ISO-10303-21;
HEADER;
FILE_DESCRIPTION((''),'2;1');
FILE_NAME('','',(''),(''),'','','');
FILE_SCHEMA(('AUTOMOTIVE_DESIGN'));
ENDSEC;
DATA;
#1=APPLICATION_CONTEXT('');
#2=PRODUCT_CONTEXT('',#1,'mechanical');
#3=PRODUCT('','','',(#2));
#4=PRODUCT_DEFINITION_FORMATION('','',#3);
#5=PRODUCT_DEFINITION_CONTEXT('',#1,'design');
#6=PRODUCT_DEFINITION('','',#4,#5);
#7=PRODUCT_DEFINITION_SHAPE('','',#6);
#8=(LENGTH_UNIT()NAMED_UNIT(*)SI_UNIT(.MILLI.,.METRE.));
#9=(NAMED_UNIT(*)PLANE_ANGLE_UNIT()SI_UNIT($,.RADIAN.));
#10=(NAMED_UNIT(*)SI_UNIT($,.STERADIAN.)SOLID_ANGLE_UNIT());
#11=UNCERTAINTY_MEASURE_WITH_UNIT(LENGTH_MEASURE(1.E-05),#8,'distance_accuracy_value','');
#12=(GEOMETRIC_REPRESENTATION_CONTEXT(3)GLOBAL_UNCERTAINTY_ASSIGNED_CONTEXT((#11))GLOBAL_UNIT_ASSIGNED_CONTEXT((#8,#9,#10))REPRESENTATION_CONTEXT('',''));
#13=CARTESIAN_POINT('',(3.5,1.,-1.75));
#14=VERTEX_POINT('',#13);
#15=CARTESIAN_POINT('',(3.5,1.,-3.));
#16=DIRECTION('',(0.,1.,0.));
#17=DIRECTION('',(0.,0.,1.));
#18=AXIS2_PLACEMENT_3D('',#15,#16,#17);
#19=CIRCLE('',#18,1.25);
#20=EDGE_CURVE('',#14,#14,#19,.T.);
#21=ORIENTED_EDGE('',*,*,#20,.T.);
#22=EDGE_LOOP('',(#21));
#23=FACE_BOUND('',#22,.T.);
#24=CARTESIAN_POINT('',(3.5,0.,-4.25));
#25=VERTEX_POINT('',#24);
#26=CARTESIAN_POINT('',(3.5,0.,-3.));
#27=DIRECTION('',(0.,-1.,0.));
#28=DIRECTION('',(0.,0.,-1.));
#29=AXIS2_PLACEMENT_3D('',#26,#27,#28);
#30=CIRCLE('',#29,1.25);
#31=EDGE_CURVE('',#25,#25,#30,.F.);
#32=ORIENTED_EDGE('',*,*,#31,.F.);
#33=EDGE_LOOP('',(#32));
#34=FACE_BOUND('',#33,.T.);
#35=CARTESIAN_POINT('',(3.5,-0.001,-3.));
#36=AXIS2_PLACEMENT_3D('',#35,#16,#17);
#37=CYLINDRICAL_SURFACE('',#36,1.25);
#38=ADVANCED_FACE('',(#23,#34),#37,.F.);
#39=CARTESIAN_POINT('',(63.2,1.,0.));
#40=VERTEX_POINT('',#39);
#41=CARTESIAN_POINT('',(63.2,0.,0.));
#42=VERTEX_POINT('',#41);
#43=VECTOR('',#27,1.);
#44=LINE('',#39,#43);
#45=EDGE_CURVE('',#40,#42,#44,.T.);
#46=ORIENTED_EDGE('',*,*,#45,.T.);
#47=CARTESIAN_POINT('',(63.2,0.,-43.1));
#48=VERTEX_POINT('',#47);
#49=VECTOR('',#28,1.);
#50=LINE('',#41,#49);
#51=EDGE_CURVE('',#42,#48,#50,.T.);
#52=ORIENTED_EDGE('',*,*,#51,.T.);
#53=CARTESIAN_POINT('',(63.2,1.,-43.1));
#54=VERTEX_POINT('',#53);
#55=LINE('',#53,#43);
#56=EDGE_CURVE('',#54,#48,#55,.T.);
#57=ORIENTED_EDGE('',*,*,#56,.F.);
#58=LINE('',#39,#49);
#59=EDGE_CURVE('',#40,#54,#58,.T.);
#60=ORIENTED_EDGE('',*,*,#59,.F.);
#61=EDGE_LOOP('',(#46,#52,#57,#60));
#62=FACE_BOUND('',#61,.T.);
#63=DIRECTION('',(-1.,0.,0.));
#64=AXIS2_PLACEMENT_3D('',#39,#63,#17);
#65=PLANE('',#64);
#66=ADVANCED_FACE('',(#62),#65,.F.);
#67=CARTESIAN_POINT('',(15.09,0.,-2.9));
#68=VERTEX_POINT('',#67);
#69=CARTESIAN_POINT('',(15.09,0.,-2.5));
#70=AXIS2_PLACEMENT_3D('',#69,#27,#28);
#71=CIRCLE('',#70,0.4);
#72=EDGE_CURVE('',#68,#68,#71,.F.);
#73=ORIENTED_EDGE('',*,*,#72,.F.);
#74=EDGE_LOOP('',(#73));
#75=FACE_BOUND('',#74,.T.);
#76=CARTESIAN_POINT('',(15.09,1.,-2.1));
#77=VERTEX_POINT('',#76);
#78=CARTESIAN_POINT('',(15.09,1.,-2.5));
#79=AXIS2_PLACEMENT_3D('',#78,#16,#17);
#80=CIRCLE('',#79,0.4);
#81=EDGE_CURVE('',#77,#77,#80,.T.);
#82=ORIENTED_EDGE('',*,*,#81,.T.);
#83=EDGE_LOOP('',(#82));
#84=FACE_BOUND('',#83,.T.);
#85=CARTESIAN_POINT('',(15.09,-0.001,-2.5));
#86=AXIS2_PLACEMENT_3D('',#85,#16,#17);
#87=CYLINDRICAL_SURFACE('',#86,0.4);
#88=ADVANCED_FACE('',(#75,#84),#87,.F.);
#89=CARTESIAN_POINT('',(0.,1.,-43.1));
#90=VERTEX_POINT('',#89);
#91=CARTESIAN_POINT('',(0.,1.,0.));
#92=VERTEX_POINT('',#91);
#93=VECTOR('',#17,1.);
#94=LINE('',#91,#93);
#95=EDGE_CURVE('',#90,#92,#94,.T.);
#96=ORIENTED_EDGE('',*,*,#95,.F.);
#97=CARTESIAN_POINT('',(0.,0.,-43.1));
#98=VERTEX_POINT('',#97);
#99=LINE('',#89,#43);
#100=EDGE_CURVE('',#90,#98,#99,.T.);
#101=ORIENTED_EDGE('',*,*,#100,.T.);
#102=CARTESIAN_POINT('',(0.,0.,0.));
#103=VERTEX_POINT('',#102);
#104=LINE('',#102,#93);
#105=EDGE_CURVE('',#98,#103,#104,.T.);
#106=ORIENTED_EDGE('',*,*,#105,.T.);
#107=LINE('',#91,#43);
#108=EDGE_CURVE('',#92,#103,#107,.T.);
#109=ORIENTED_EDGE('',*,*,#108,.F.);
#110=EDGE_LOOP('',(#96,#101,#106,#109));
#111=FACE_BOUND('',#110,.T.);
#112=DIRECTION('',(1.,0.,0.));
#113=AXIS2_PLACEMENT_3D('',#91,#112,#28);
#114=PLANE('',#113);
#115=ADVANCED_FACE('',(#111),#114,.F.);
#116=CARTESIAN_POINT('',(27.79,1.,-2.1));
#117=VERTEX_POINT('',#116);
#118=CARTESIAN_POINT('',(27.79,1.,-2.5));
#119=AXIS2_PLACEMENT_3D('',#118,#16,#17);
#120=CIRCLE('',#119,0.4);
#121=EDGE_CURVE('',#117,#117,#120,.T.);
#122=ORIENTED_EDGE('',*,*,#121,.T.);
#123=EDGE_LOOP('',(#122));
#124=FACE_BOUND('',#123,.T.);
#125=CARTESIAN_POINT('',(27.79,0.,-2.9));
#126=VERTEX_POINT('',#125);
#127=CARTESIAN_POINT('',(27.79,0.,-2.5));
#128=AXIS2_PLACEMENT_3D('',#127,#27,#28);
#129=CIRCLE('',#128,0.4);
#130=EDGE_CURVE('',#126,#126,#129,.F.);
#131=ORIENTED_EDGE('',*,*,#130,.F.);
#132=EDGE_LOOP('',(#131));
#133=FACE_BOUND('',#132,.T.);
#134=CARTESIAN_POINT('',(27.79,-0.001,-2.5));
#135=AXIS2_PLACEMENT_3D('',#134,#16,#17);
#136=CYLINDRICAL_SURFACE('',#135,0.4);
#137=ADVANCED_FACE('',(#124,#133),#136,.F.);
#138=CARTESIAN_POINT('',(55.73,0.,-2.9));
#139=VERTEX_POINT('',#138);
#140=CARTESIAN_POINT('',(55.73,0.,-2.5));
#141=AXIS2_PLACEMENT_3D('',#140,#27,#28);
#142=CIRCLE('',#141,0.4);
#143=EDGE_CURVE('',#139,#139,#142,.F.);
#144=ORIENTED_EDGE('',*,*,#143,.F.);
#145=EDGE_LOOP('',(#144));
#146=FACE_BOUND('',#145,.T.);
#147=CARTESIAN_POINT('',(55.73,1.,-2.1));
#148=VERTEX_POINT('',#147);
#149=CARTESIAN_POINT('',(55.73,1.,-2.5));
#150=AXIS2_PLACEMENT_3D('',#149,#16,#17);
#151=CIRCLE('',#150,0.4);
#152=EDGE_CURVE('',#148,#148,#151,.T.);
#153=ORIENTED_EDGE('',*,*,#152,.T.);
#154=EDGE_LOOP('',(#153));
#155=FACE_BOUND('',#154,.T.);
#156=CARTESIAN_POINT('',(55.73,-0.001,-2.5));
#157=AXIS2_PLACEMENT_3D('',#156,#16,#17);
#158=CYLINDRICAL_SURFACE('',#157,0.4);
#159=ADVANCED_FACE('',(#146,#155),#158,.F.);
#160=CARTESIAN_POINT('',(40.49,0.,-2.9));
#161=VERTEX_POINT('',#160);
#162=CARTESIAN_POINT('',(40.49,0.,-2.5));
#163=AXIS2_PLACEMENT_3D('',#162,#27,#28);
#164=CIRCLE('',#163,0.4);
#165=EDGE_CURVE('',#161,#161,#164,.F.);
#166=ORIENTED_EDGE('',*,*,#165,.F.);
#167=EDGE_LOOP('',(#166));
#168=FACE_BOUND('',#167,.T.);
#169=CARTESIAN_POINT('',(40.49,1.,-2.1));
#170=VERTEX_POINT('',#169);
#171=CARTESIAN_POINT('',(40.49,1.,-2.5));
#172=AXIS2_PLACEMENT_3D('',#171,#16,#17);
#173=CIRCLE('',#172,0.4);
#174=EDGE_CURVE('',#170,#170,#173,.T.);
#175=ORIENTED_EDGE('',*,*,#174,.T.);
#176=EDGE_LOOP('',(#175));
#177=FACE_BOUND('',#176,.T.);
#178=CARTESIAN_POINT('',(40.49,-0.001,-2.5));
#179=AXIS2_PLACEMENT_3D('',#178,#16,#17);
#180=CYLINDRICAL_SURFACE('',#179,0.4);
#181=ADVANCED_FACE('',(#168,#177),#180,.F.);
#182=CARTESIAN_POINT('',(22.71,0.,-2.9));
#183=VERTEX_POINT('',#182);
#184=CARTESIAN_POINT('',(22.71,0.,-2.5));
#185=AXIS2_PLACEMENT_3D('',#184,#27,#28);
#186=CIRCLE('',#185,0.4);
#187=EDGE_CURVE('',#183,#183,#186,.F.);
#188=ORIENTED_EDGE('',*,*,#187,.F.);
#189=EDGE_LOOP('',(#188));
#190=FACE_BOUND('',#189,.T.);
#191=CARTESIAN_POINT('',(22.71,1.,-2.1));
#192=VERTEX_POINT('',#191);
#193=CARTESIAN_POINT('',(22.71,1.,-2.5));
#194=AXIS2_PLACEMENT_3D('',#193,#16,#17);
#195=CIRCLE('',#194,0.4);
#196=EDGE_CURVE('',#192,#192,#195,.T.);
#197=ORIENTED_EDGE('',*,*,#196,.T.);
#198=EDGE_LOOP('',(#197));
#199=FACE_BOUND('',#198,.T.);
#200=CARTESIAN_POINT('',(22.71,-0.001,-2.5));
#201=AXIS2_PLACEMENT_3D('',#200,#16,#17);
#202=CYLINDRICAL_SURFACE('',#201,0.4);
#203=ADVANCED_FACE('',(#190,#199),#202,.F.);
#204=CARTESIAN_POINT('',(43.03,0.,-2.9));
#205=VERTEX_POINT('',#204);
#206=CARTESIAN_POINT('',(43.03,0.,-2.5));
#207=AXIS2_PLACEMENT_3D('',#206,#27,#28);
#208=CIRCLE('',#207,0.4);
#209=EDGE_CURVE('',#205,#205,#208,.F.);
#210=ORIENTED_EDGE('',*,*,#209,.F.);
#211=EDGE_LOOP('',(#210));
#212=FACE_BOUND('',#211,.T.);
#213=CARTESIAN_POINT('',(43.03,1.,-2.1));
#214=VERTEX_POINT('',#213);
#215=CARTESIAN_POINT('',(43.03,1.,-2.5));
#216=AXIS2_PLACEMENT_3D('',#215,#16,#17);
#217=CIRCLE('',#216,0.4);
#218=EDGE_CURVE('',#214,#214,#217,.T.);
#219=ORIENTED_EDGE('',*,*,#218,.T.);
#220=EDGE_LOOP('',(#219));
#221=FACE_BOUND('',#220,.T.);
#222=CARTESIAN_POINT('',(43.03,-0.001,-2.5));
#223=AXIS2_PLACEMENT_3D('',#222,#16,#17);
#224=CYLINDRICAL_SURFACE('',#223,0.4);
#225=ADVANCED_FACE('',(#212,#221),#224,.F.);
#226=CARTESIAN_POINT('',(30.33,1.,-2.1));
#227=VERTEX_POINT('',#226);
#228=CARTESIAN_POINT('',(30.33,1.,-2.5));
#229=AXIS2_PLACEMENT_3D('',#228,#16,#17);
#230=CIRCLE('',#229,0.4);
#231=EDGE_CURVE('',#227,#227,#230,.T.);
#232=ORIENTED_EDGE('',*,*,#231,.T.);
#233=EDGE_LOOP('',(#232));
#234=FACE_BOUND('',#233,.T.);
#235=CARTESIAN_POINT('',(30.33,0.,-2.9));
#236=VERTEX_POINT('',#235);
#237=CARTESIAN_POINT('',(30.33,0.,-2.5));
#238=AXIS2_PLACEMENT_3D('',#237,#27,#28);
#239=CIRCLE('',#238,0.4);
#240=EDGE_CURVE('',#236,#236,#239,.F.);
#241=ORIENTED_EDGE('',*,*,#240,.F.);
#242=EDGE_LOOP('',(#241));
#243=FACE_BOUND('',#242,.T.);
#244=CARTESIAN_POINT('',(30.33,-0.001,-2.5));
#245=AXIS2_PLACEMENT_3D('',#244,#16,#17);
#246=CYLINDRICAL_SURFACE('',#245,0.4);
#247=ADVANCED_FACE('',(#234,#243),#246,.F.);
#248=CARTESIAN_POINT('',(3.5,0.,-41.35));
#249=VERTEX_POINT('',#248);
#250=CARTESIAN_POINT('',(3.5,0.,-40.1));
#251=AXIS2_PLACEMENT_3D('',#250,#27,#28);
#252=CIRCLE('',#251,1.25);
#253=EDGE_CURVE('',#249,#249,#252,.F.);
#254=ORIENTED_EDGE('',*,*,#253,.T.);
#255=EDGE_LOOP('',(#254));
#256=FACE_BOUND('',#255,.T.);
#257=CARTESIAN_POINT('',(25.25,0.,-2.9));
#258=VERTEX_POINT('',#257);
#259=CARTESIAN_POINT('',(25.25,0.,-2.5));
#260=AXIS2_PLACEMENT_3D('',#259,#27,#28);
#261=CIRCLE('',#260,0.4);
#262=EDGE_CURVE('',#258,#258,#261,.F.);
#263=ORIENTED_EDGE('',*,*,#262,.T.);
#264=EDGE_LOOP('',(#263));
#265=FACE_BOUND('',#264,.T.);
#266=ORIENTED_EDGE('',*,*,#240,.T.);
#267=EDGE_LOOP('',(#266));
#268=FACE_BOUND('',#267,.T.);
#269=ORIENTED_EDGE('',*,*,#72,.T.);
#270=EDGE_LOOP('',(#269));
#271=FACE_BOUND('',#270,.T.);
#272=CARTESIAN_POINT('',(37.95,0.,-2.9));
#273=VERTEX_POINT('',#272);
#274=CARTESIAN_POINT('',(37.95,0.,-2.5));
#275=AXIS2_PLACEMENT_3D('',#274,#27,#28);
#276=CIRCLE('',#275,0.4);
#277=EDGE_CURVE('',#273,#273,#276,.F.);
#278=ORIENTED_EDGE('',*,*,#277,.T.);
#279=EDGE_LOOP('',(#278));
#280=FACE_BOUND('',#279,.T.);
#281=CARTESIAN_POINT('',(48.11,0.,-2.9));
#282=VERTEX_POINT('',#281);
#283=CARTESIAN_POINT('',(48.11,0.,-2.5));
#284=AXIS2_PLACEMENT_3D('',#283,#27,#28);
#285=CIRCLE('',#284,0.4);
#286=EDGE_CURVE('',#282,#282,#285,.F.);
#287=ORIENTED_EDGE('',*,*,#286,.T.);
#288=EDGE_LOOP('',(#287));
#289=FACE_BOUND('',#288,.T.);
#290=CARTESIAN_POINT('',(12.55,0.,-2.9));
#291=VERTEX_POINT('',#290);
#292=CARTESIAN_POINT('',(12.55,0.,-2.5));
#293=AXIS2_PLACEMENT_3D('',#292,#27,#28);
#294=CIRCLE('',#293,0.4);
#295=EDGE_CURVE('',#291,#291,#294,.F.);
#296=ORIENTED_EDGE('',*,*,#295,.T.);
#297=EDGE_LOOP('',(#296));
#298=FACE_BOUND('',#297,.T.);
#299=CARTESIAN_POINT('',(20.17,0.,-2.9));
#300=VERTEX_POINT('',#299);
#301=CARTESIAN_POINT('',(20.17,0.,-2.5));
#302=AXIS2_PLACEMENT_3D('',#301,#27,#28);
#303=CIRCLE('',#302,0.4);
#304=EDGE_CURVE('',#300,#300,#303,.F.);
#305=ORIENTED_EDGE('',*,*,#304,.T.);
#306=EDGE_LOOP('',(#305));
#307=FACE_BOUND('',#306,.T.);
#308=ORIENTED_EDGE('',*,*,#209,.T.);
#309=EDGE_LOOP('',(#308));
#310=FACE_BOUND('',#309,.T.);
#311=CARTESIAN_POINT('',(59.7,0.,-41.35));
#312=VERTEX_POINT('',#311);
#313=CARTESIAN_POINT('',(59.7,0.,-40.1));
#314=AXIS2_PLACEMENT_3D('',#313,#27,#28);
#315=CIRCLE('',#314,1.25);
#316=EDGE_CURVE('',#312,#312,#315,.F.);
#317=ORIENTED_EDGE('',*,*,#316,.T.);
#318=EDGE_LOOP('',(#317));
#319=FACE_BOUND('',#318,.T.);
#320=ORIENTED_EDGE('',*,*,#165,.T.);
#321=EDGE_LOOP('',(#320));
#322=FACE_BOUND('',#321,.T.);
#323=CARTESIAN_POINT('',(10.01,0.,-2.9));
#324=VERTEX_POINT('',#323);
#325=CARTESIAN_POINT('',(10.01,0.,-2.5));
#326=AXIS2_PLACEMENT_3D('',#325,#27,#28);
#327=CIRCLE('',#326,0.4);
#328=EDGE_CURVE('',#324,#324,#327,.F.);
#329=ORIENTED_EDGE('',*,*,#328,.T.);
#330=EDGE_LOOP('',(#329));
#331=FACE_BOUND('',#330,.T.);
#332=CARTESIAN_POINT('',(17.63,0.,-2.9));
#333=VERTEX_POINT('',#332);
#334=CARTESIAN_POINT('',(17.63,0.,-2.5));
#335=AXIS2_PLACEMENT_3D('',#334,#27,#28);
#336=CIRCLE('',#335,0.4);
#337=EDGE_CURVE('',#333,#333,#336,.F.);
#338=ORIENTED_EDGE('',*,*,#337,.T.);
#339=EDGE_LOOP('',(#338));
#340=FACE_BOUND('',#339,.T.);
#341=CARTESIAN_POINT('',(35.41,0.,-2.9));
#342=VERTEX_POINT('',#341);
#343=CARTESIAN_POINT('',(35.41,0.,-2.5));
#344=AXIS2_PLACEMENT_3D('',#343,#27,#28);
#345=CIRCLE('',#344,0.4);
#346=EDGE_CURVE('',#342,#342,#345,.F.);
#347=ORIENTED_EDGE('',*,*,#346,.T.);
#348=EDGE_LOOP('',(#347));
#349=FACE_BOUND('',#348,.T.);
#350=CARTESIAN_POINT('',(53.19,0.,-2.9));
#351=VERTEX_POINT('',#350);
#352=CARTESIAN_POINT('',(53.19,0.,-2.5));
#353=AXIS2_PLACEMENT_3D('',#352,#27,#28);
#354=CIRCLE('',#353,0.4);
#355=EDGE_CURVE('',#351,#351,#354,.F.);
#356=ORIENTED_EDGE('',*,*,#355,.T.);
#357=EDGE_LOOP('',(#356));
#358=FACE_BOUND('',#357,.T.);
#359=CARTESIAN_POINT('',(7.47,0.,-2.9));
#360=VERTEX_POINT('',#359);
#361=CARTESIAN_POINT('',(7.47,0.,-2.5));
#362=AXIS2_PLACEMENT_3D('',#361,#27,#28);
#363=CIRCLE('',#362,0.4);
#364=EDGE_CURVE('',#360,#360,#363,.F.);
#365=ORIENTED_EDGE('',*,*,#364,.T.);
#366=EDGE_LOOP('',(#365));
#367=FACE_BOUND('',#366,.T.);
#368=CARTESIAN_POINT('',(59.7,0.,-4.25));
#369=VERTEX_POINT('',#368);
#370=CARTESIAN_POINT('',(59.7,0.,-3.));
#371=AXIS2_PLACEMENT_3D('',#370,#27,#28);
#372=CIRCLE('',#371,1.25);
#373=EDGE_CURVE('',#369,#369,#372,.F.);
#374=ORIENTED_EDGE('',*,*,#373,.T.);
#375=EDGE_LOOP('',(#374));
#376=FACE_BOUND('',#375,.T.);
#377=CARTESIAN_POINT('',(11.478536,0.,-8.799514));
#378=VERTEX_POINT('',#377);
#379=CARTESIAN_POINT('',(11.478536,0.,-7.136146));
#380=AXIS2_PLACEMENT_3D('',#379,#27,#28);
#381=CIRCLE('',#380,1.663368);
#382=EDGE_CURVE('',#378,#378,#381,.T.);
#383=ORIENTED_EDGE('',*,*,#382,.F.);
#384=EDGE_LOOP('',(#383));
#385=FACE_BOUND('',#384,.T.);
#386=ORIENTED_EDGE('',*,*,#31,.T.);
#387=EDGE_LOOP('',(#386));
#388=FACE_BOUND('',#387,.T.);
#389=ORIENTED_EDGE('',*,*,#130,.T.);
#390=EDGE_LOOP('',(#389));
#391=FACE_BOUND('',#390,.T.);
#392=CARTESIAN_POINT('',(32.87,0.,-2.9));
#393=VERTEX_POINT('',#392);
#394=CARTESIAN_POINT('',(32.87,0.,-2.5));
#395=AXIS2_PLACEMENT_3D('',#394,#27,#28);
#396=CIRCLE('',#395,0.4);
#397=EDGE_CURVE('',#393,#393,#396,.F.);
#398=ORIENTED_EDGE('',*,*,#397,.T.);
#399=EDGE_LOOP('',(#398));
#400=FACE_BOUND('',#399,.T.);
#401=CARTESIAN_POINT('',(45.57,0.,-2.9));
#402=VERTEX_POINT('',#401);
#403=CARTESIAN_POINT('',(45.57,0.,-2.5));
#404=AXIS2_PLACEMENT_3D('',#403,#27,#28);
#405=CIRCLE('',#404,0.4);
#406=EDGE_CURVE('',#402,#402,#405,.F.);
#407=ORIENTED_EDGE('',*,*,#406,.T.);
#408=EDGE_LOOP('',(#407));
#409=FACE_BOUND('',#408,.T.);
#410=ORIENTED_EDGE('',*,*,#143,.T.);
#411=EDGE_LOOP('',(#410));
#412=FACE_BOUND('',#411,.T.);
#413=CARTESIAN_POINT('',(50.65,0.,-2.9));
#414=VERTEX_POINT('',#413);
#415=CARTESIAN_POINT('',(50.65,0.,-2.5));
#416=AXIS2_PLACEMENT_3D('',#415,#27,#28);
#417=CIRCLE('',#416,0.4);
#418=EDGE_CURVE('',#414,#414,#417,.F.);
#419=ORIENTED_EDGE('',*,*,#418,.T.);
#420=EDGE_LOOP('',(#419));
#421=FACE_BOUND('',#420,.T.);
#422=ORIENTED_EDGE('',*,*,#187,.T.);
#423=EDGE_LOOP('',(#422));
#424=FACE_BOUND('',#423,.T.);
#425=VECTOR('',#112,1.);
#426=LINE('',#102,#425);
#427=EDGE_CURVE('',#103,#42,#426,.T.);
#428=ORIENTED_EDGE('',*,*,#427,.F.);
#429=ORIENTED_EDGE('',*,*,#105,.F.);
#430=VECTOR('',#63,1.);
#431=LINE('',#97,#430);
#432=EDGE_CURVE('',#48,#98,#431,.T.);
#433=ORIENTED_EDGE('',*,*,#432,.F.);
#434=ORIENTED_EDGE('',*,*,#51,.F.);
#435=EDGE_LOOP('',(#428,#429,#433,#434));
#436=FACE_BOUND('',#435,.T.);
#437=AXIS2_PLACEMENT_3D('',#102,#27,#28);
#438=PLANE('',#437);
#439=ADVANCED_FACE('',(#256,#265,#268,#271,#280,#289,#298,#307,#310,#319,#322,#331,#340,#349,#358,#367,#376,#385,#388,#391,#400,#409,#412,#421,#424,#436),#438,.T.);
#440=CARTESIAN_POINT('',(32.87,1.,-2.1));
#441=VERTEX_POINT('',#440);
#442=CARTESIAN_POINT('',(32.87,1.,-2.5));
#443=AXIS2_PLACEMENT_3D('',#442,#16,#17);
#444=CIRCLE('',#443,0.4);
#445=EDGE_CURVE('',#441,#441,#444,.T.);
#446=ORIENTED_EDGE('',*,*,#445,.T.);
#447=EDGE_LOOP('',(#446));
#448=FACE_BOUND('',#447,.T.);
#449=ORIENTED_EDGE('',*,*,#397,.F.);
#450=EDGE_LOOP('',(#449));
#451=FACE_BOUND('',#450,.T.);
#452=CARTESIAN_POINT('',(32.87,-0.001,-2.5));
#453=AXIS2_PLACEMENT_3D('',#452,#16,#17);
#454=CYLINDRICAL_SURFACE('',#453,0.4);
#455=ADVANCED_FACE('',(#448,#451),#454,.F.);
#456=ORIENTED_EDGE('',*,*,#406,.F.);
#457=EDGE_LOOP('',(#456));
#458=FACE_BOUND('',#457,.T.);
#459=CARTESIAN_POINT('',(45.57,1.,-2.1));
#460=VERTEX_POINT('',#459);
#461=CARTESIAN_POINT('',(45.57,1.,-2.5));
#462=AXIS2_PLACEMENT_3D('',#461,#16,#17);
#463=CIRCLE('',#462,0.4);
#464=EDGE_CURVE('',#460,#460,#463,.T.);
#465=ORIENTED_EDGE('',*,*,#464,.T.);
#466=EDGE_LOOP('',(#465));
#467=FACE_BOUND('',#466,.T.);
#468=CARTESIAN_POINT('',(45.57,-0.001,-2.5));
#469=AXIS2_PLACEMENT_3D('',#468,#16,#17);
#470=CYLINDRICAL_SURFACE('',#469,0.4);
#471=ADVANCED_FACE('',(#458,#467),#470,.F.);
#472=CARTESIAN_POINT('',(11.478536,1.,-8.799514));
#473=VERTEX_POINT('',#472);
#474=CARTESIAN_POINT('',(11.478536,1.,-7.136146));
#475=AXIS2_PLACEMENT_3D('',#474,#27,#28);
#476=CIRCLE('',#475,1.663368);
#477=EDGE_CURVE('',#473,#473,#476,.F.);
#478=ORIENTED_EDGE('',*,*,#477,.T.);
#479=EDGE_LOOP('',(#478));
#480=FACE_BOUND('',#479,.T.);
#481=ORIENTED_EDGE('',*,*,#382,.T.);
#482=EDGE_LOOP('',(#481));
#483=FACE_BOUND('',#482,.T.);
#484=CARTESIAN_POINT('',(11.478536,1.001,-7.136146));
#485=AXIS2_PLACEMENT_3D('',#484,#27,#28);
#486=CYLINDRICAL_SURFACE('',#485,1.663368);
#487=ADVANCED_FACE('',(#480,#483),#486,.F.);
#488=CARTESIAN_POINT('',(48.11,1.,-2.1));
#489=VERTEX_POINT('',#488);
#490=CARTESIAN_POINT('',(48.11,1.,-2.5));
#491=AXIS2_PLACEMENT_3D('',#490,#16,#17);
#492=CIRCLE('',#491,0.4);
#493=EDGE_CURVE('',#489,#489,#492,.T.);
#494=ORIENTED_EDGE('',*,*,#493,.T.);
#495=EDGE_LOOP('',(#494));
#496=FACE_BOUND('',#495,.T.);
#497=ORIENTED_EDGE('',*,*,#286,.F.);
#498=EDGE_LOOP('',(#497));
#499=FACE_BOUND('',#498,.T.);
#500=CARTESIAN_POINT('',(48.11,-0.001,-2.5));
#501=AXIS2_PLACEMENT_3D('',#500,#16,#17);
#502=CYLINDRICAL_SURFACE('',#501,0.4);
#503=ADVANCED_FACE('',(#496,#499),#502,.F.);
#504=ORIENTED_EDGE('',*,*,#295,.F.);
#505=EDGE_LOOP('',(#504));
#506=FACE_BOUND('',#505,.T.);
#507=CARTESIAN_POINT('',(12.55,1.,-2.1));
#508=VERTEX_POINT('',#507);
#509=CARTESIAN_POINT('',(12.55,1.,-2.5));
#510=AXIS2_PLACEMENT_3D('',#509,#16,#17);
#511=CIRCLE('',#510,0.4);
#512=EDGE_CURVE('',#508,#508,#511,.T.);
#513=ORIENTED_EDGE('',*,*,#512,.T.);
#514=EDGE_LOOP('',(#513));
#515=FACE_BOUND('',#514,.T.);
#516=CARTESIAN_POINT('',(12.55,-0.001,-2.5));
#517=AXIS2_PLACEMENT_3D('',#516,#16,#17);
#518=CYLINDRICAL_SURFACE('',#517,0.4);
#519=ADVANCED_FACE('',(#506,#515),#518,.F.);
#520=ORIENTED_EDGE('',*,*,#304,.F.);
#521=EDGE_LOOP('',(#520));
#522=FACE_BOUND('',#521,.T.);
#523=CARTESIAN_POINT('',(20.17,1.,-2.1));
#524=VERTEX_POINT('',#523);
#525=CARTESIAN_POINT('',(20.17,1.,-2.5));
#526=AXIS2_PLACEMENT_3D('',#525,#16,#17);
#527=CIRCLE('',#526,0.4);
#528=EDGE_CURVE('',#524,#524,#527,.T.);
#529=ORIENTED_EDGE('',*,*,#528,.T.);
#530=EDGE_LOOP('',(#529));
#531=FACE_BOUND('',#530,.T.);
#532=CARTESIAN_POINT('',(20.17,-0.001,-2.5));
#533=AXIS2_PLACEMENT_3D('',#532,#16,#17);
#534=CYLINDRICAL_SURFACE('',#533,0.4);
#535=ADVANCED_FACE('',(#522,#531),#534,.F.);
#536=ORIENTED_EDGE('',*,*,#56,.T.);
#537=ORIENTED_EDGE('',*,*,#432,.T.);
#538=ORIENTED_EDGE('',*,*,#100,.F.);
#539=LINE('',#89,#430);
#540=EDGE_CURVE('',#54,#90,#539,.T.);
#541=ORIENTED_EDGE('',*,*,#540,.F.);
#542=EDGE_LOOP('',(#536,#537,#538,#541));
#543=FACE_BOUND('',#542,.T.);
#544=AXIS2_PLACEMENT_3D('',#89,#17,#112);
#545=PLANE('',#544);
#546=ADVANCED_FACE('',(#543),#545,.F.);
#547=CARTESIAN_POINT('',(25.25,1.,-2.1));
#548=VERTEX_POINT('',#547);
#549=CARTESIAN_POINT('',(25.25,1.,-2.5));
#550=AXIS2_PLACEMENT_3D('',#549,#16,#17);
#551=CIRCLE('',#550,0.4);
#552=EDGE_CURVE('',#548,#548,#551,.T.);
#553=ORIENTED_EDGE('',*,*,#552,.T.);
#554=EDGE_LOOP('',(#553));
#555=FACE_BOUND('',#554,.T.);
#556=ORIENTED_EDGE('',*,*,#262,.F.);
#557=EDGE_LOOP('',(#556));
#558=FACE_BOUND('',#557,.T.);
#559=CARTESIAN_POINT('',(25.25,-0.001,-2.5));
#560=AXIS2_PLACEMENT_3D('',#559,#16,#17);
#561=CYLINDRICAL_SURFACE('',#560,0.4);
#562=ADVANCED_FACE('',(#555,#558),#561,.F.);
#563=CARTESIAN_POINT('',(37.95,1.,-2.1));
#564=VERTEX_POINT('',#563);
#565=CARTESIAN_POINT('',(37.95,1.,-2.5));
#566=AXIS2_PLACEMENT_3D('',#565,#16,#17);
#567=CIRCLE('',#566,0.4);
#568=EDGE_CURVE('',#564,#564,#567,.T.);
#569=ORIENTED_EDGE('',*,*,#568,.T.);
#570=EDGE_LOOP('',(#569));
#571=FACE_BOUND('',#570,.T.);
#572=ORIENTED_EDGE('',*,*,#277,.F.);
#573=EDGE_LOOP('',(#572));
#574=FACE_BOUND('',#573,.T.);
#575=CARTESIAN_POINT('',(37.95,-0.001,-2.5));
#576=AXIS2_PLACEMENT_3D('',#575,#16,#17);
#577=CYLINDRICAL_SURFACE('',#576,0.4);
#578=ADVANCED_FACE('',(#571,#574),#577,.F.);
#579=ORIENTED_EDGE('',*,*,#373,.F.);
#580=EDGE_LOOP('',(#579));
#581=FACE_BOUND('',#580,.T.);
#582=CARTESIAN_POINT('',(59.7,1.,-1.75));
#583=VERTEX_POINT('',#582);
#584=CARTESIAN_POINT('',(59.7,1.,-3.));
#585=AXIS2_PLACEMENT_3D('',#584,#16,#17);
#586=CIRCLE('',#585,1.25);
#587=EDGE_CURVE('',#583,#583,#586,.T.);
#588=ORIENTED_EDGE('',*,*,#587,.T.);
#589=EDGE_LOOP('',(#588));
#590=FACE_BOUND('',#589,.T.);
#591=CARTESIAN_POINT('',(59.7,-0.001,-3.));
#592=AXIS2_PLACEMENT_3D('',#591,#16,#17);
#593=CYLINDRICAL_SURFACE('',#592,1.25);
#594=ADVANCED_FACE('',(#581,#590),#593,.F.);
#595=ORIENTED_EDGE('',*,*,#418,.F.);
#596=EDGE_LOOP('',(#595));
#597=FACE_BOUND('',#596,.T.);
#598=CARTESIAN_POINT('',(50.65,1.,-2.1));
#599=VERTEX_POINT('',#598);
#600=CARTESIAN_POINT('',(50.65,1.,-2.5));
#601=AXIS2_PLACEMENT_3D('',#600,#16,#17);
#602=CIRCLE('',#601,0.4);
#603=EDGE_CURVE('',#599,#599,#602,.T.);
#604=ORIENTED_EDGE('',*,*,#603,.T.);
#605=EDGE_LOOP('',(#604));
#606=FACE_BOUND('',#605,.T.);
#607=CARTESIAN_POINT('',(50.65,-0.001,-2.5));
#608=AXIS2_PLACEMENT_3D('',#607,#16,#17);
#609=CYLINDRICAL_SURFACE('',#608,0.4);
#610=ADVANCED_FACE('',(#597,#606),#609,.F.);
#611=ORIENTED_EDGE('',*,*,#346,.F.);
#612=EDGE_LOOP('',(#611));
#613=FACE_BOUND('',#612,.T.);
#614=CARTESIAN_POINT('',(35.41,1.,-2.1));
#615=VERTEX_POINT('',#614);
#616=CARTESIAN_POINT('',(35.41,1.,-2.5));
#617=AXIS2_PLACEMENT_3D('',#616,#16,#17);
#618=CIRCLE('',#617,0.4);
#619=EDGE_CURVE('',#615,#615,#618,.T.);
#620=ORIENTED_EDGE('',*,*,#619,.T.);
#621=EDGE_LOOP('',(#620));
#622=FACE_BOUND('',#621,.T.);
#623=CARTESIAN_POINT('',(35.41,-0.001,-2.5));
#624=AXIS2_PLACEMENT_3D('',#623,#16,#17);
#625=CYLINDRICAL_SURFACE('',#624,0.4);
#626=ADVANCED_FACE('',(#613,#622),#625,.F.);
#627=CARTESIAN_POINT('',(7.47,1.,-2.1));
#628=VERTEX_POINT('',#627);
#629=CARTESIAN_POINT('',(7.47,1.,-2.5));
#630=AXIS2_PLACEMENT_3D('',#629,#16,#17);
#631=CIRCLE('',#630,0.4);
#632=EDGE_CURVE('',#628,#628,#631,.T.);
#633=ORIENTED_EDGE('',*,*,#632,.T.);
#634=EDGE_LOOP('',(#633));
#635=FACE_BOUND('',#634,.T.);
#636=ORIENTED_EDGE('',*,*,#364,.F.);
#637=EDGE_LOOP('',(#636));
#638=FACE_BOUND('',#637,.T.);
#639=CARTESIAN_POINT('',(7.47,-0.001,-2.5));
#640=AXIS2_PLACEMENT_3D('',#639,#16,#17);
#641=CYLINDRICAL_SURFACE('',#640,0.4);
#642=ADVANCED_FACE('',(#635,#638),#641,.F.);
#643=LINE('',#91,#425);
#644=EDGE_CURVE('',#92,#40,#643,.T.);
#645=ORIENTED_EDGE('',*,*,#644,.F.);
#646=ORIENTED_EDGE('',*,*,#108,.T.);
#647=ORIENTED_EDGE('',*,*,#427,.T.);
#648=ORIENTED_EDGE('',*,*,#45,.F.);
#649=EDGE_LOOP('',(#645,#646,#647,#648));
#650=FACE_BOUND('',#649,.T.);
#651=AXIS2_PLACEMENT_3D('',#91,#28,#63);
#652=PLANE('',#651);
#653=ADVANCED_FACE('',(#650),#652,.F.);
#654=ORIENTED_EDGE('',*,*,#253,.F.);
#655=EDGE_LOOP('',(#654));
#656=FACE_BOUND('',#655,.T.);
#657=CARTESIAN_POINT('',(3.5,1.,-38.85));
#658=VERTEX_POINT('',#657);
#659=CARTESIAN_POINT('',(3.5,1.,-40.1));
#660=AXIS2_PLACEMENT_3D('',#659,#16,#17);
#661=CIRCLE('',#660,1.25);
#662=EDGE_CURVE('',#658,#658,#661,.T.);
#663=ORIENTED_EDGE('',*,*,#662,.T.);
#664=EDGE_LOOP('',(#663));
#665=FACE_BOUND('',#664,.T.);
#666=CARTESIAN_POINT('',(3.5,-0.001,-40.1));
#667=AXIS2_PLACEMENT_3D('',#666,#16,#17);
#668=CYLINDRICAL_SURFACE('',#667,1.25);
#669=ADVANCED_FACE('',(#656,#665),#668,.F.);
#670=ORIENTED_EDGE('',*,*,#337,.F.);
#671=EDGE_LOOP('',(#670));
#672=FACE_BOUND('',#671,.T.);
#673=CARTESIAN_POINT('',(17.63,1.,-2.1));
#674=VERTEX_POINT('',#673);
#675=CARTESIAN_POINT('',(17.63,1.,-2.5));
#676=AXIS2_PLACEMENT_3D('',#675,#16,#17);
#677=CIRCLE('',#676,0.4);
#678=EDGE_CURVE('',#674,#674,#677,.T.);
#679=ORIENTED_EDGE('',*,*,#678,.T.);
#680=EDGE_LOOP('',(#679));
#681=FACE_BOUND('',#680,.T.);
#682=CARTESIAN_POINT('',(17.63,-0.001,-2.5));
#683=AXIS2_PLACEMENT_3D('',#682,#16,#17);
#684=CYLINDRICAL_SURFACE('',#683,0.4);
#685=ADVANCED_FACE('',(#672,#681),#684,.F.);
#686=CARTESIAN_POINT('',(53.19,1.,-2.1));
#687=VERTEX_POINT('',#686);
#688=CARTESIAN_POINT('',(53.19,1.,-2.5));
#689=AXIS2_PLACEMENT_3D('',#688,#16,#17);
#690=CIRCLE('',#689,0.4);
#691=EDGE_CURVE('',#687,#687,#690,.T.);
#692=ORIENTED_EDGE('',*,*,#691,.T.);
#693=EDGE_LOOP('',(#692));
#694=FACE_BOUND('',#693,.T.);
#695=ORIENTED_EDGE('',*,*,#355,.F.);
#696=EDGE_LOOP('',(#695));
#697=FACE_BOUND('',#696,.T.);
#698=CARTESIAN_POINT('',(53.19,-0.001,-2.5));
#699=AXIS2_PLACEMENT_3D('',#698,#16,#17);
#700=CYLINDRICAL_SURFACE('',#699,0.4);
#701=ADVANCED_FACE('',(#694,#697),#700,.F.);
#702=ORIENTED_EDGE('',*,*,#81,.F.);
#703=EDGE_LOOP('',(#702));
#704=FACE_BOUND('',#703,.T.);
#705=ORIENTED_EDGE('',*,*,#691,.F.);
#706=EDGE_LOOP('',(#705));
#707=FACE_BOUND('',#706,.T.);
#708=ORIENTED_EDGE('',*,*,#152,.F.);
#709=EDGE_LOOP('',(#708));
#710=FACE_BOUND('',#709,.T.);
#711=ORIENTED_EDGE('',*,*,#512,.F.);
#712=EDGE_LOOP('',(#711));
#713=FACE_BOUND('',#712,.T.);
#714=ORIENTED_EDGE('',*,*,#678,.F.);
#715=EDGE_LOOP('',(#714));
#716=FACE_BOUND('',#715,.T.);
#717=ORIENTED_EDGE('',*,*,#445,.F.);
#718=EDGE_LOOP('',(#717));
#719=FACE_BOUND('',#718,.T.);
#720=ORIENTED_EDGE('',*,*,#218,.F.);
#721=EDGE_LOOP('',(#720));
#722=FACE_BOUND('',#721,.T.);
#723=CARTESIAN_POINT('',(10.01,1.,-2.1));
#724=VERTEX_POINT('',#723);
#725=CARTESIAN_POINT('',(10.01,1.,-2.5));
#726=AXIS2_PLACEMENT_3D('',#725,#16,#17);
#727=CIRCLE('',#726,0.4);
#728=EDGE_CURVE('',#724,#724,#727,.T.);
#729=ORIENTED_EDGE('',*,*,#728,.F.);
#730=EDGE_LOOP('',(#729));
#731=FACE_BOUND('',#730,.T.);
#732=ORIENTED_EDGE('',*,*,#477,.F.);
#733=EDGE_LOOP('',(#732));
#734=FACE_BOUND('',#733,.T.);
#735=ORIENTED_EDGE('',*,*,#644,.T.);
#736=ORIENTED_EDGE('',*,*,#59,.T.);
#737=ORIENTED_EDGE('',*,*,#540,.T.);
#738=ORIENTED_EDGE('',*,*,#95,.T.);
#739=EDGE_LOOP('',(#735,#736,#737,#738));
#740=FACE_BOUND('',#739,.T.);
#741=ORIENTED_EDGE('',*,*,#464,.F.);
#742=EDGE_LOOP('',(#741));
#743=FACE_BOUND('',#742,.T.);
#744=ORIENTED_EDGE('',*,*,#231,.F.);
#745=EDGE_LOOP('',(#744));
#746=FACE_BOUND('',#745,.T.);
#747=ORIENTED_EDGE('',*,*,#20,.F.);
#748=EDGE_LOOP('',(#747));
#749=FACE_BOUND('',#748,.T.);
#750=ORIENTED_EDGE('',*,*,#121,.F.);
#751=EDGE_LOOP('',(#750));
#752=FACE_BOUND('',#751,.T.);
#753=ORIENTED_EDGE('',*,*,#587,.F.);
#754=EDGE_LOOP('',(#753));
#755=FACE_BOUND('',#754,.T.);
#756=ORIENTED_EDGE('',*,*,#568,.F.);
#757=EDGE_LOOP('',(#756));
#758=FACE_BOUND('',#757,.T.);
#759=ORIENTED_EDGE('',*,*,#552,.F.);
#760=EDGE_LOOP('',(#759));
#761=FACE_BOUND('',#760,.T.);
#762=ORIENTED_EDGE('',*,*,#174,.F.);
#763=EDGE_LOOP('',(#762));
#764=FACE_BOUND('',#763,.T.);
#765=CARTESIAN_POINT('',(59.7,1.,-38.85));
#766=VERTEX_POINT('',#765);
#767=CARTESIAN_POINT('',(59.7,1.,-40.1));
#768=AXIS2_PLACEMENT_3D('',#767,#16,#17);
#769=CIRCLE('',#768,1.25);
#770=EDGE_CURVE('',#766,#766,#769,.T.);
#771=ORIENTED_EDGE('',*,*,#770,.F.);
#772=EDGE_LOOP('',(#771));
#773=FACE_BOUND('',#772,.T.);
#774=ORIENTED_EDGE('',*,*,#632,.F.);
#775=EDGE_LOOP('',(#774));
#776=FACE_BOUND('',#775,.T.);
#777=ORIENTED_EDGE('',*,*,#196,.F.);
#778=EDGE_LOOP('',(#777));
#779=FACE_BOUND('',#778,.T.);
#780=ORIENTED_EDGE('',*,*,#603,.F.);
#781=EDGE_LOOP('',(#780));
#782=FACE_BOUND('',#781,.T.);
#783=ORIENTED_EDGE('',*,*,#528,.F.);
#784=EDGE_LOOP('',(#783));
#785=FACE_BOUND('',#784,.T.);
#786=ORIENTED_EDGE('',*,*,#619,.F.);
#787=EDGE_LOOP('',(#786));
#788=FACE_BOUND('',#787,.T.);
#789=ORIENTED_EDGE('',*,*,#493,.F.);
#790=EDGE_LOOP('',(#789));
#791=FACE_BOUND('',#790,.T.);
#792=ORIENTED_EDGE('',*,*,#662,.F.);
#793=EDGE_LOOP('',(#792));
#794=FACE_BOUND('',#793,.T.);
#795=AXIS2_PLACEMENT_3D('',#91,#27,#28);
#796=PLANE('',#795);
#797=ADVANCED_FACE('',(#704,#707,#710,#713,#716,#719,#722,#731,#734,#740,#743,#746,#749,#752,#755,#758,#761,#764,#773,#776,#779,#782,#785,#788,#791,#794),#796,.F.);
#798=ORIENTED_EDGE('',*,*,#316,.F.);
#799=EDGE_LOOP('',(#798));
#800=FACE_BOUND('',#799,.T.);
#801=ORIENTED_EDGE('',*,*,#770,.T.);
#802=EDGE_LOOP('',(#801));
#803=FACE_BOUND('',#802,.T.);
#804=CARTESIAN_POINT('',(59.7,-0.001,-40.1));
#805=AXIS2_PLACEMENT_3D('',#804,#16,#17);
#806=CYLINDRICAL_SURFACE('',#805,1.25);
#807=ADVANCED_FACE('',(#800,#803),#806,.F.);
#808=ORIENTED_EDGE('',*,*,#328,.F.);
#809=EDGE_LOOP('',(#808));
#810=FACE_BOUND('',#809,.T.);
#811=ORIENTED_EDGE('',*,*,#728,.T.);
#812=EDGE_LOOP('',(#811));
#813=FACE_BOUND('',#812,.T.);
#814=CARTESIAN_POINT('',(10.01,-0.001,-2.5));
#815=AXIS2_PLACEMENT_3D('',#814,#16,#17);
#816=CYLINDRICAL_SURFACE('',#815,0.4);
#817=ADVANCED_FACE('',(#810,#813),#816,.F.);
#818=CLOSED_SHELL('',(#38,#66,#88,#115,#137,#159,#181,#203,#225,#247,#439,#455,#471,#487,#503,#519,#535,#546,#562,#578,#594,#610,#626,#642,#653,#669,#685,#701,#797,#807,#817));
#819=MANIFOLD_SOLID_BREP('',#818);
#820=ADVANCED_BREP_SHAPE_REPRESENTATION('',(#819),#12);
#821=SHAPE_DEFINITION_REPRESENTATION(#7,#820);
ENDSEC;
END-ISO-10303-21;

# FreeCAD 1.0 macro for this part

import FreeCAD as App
import Part
import Sketcher
Q = App.Units.Quantity


def add_polygon(sketch, points):
    """Adds a closed chain of lines whose ends are joined by coincident constraints."""
    first, n = sketch.GeometryCount, len(points)
    for a, b in zip(points, points[1:] + points[:1]):
        sketch.addGeometry(Part.LineSegment(App.Vector(*a, 0), App.Vector(*b, 0)), False)
    for i in range(n):
        sketch.addConstraint(Sketcher.Constraint("Coincident", first + i, 2, first + (i + 1) % n, 1))

doc = App.newDocument("Part")
body = doc.addObject("PartDesign::Body", "Body")

sketch1 = body.newObject("Sketcher::SketchObject", "Sketch")
sketch1.AttachmentSupport = (doc.getObject("XZ_Plane"), [""])
sketch1.MapMode = "FlatFace"
add_polygon(sketch1, [(0, -43), (0, 0), (63, 0), (63, -43)])
sketch1.addConstraint([
    Sketcher.Constraint("Vertical", 0),
    Sketcher.Constraint("Horizontal", 1),
    Sketcher.Constraint("Vertical", 2),
    Sketcher.Constraint("Horizontal", 3),
    Sketcher.Constraint("Coincident", 0, 2, -1, 1),
    Sketcher.Constraint("DistanceX", 1, 1, 1, 2, Q("63.2 mm")),
    Sketcher.Constraint("DistanceY", 0, 1, 0, 2, Q("43.1 mm")),
])
pad1 = body.newObject("PartDesign::Pad", "Pad")
pad1.Profile = sketch1
pad1.Length = 1
pad1.Reversed = True

sketch2 = body.newObject("Sketcher::SketchObject", "Sketch001")
sketch2.AttachmentSupport = (doc.getObject("XZ_Plane"), [""])
sketch2.MapMode = "FlatFace"
sketch2.AttachmentOffset = App.Placement(App.Vector(0, 0, -1), App.Rotation())
sketch2.addGeometry(Part.Circle(App.Vector(3.5, -40.1, 0), App.Vector(0, 0, 1), 1.2), False)
sketch2.addConstraint([
    Sketcher.Constraint("Diameter", 0, Q("2.5 mm")),
    Sketcher.Constraint("DistanceX", -1, 1, 0, 3, Q("3.5 mm")),
    Sketcher.Constraint("DistanceY", 0, 3, -1, 1, Q("40.1 mm")),
])
pocket1 = body.newObject("PartDesign::Pocket", "Pocket")
pocket1.Profile = sketch2
pocket1.Type = "UpToFirst"
pocket1.Reversed = True

sketch3 = body.newObject("Sketcher::SketchObject", "Sketch002")
sketch3.AttachmentSupport = (doc.getObject("XZ_Plane"), [""])
sketch3.MapMode = "FlatFace"
sketch3.AttachmentOffset = App.Placement(App.Vector(0, 0, -1), App.Rotation())
sketch3.addGeometry(Part.Circle(App.Vector(59.7, -40.1, 0), App.Vector(0, 0, 1), 1.2), False)
sketch3.addConstraint([
    Sketcher.Constraint("Diameter", 0, Q("2.5 mm")),
    Sketcher.Constraint("DistanceX", -1, 1, 0, 3, Q("59.7 mm")),
    Sketcher.Constraint("DistanceY", 0, 3, -1, 1, Q("40.1 mm")),
])
pocket2 = body.newObject("PartDesign::Pocket", "Pocket001")
pocket2.Profile = sketch3
pocket2.Type = "UpToFirst"
pocket2.Reversed = True

sketch4 = body.newObject("Sketcher::SketchObject", "Sketch003")
sketch4.AttachmentSupport = (doc.getObject("XZ_Plane"), [""])
sketch4.MapMode = "FlatFace"
sketch4.AttachmentOffset = App.Placement(App.Vector(0, 0, -1), App.Rotation())
sketch4.addGeometry(Part.Circle(App.Vector(59.7, -3, 0), App.Vector(0, 0, 1), 1.2), False)
sketch4.addConstraint([
    Sketcher.Constraint("Diameter", 0, Q("2.5 mm")),
    Sketcher.Constraint("DistanceY", 0, 3, -1, 1, Q("3 mm")),
    Sketcher.Constraint("DistanceX", -1, 1, 0, 3, Q("59.7 mm")),
])
pocket3 = body.newObject("PartDesign::Pocket", "Pocket002")
pocket3.Profile = sketch4
pocket3.Type = "UpToFirst"
pocket3.Reversed = True

sketch5 = body.newObject("Sketcher::SketchObject", "Sketch004")
sketch5.AttachmentSupport = (doc.getObject("XZ_Plane"), [""])
sketch5.MapMode = "FlatFace"
sketch5.AttachmentOffset = App.Placement(App.Vector(0, 0, -1), App.Rotation())
sketch5.addGeometry(Part.Circle(App.Vector(3.5, -3, 0), App.Vector(0, 0, 1), 1.2), False)
sketch5.addConstraint([
    Sketcher.Constraint("Diameter", 0, Q("2.5 mm")),
    Sketcher.Constraint("DistanceY", 0, 3, -1, 1, Q("3 mm")),
    Sketcher.Constraint("DistanceX", -1, 1, 0, 3, Q("3.5 mm")),
])
pocket4 = body.newObject("PartDesign::Pocket", "Pocket003")
pocket4.Profile = sketch5
pocket4.Type = "UpToFirst"
pocket4.Reversed = True

sketch6 = body.newObject("Sketcher::SketchObject", "Sketch005")
sketch6.AttachmentSupport = (doc.getObject("XZ_Plane"), [""])
sketch6.MapMode = "FlatFace"
sketch6.AttachmentOffset = App.Placement(App.Vector(0, 0, -1), App.Rotation())
sketch6.addGeometry(Part.Circle(App.Vector(7.47, -2.5, 0), App.Vector(0, 0, 1), 0.4), False)
sketch6.addConstraint([
    Sketcher.Constraint("Diameter", 0, Q("0.8 mm")),
    Sketcher.Constraint("DistanceY", 0, 3, -1, 1, Q("2.5 mm")),
    Sketcher.Constraint("DistanceX", -1, 1, 0, 3, Q("7.47 mm")),
])
pocket5 = body.newObject("PartDesign::Pocket", "Pocket004")
pocket5.Profile = sketch6
pocket5.Type = "UpToFirst"
pocket5.Reversed = True

sketch7 = body.newObject("Sketcher::SketchObject", "Sketch006")
sketch7.AttachmentSupport = (doc.getObject("XZ_Plane"), [""])
sketch7.MapMode = "FlatFace"
sketch7.AttachmentOffset = App.Placement(App.Vector(0, 0, -1), App.Rotation())
sketch7.addGeometry(Part.Circle(App.Vector(10.01, -2.5, 0), App.Vector(0, 0, 1), 0.4), False)
sketch7.addConstraint([
    Sketcher.Constraint("Diameter", 0, Q("0.8 mm")),
    Sketcher.Constraint("DistanceY", 0, 3, -1, 1, Q("2.5 mm")),
    Sketcher.Constraint("DistanceX", -1, 1, 0, 3, Q("10.01 mm")),
])
pocket6 = body.newObject("PartDesign::Pocket", "Pocket005")
pocket6.Profile = sketch7
pocket6.Type = "UpToFirst"
pocket6.Reversed = True

sketch8 = body.newObject("Sketcher::SketchObject", "Sketch007")
sketch8.AttachmentSupport = (doc.getObject("XZ_Plane"), [""])
sketch8.MapMode = "FlatFace"
sketch8.AttachmentOffset = App.Placement(App.Vector(0, 0, -1), App.Rotation())
sketch8.addGeometry(Part.Circle(App.Vector(12.55, -2.5, 0), App.Vector(0, 0, 1), 0.4), False)
sketch8.addConstraint([
    Sketcher.Constraint("Diameter", 0, Q("0.8 mm")),
    Sketcher.Constraint("DistanceY", 0, 3, -1, 1, Q("2.5 mm")),
    Sketcher.Constraint("DistanceX", -1, 1, 0, 3, Q("12.55 mm")),
])
pocket7 = body.newObject("PartDesign::Pocket", "Pocket006")
pocket7.Profile = sketch8
pocket7.Type = "UpToFirst"
pocket7.Reversed = True

sketch9 = body.newObject("Sketcher::SketchObject", "Sketch008")
sketch9.AttachmentSupport = (doc.getObject("XZ_Plane"), [""])
sketch9.MapMode = "FlatFace"
sketch9.AttachmentOffset = App.Placement(App.Vector(0, 0, -1), App.Rotation())
sketch9.addGeometry(Part.Circle(App.Vector(15.09, -2.5, 0), App.Vector(0, 0, 1), 0.4), False)
sketch9.addConstraint([
    Sketcher.Constraint("Diameter", 0, Q("0.8 mm")),
    Sketcher.Constraint("DistanceY", 0, 3, -1, 1, Q("2.5 mm")),
    Sketcher.Constraint("DistanceX", -1, 1, 0, 3, Q("15.09 mm")),
])
pocket8 = body.newObject("PartDesign::Pocket", "Pocket007")
pocket8.Profile = sketch9
pocket8.Type = "UpToFirst"
pocket8.Reversed = True

sketch10 = body.newObject("Sketcher::SketchObject", "Sketch009")
sketch10.AttachmentSupport = (doc.getObject("XZ_Plane"), [""])
sketch10.MapMode = "FlatFace"
sketch10.AttachmentOffset = App.Placement(App.Vector(0, 0, -1), App.Rotation())
sketch10.addGeometry(Part.Circle(App.Vector(17.63, -2.5, 0), App.Vector(0, 0, 1), 0.4), False)
sketch10.addConstraint([
    Sketcher.Constraint("Diameter", 0, Q("0.8 mm")),
    Sketcher.Constraint("DistanceY", 0, 3, -1, 1, Q("2.5 mm")),
    Sketcher.Constraint("DistanceX", -1, 1, 0, 3, Q("17.63 mm")),
])
pocket9 = body.newObject("PartDesign::Pocket", "Pocket008")
pocket9.Profile = sketch10
pocket9.Type = "UpToFirst"
pocket9.Reversed = True

sketch11 = body.newObject("Sketcher::SketchObject", "Sketch010")
sketch11.AttachmentSupport = (doc.getObject("XZ_Plane"), [""])
sketch11.MapMode = "FlatFace"
sketch11.AttachmentOffset = App.Placement(App.Vector(0, 0, -1), App.Rotation())
sketch11.addGeometry(Part.Circle(App.Vector(20.17, -2.5, 0), App.Vector(0, 0, 1), 0.4), False)
sketch11.addConstraint([
    Sketcher.Constraint("Diameter", 0, Q("0.8 mm")),
    Sketcher.Constraint("DistanceY", 0, 3, -1, 1, Q("2.5 mm")),
    Sketcher.Constraint("DistanceX", -1, 1, 0, 3, Q("20.17 mm")),
])
pocket10 = body.newObject("PartDesign::Pocket", "Pocket009")
pocket10.Profile = sketch11
pocket10.Type = "UpToFirst"
pocket10.Reversed = True

sketch12 = body.newObject("Sketcher::SketchObject", "Sketch011")
sketch12.AttachmentSupport = (doc.getObject("XZ_Plane"), [""])
sketch12.MapMode = "FlatFace"
sketch12.AttachmentOffset = App.Placement(App.Vector(0, 0, -1), App.Rotation())
sketch12.addGeometry(Part.Circle(App.Vector(22.71, -2.5, 0), App.Vector(0, 0, 1), 0.4), False)
sketch12.addConstraint([
    Sketcher.Constraint("Diameter", 0, Q("0.8 mm")),
    Sketcher.Constraint("DistanceY", 0, 3, -1, 1, Q("2.5 mm")),
    Sketcher.Constraint("DistanceX", -1, 1, 0, 3, Q("22.71 mm")),
])
pocket11 = body.newObject("PartDesign::Pocket", "Pocket010")
pocket11.Profile = sketch12
pocket11.Type = "UpToFirst"
pocket11.Reversed = True

sketch13 = body.newObject("Sketcher::SketchObject", "Sketch012")
sketch13.AttachmentSupport = (doc.getObject("XZ_Plane"), [""])
sketch13.MapMode = "FlatFace"
sketch13.AttachmentOffset = App.Placement(App.Vector(0, 0, -1), App.Rotation())
sketch13.addGeometry(Part.Circle(App.Vector(25.25, -2.5, 0), App.Vector(0, 0, 1), 0.4), False)
sketch13.addConstraint([
    Sketcher.Constraint("Diameter", 0, Q("0.8 mm")),
    Sketcher.Constraint("DistanceY", 0, 3, -1, 1, Q("2.5 mm")),
    Sketcher.Constraint("DistanceX", -1, 1, 0, 3, Q("25.25 mm")),
])
pocket12 = body.newObject("PartDesign::Pocket", "Pocket011")
pocket12.Profile = sketch13
pocket12.Type = "UpToFirst"
pocket12.Reversed = True

sketch14 = body.newObject("Sketcher::SketchObject", "Sketch013")
sketch14.AttachmentSupport = (doc.getObject("XZ_Plane"), [""])
sketch14.MapMode = "FlatFace"
sketch14.AttachmentOffset = App.Placement(App.Vector(0, 0, -1), App.Rotation())
sketch14.addGeometry(Part.Circle(App.Vector(27.79, -2.5, 0), App.Vector(0, 0, 1), 0.4), False)
sketch14.addConstraint([
    Sketcher.Constraint("Diameter", 0, Q("0.8 mm")),
    Sketcher.Constraint("DistanceY", 0, 3, -1, 1, Q("2.5 mm")),
    Sketcher.Constraint("DistanceX", -1, 1, 0, 3, Q("27.79 mm")),
])
pocket13 = body.newObject("PartDesign::Pocket", "Pocket012")
pocket13.Profile = sketch14
pocket13.Type = "UpToFirst"
pocket13.Reversed = True

sketch15 = body.newObject("Sketcher::SketchObject", "Sketch014")
sketch15.AttachmentSupport = (doc.getObject("XZ_Plane"), [""])
sketch15.MapMode = "FlatFace"
sketch15.AttachmentOffset = App.Placement(App.Vector(0, 0, -1), App.Rotation())
sketch15.addGeometry(Part.Circle(App.Vector(30.33, -2.5, 0), App.Vector(0, 0, 1), 0.4), False)
sketch15.addConstraint([
    Sketcher.Constraint("Diameter", 0, Q("0.8 mm")),
    Sketcher.Constraint("DistanceY", 0, 3, -1, 1, Q("2.5 mm")),
    Sketcher.Constraint("DistanceX", -1, 1, 0, 3, Q("30.33 mm")),
])
pocket14 = body.newObject("PartDesign::Pocket", "Pocket013")
pocket14.Profile = sketch15
pocket14.Type = "UpToFirst"
pocket14.Reversed = True

sketch16 = body.newObject("Sketcher::SketchObject", "Sketch015")
sketch16.AttachmentSupport = (doc.getObject("XZ_Plane"), [""])
sketch16.MapMode = "FlatFace"
sketch16.AttachmentOffset = App.Placement(App.Vector(0, 0, -1), App.Rotation())
sketch16.addGeometry(Part.Circle(App.Vector(32.87, -2.5, 0), App.Vector(0, 0, 1), 0.4), False)
sketch16.addConstraint([
    Sketcher.Constraint("Diameter", 0, Q("0.8 mm")),
    Sketcher.Constraint("DistanceY", 0, 3, -1, 1, Q("2.5 mm")),
    Sketcher.Constraint("DistanceX", -1, 1, 0, 3, Q("32.87 mm")),
])
pocket15 = body.newObject("PartDesign::Pocket", "Pocket014")
pocket15.Profile = sketch16
pocket15.Type = "UpToFirst"
pocket15.Reversed = True

sketch17 = body.newObject("Sketcher::SketchObject", "Sketch016")
sketch17.AttachmentSupport = (doc.getObject("XZ_Plane"), [""])
sketch17.MapMode = "FlatFace"
sketch17.AttachmentOffset = App.Placement(App.Vector(0, 0, -1), App.Rotation())
sketch17.addGeometry(Part.Circle(App.Vector(35.41, -2.5, 0), App.Vector(0, 0, 1), 0.4), False)
sketch17.addConstraint([
    Sketcher.Constraint("Diameter", 0, Q("0.8 mm")),
    Sketcher.Constraint("DistanceY", 0, 3, -1, 1, Q("2.5 mm")),
    Sketcher.Constraint("DistanceX", -1, 1, 0, 3, Q("35.41 mm")),
])
pocket16 = body.newObject("PartDesign::Pocket", "Pocket015")
pocket16.Profile = sketch17
pocket16.Type = "UpToFirst"
pocket16.Reversed = True

sketch18 = body.newObject("Sketcher::SketchObject", "Sketch017")
sketch18.AttachmentSupport = (doc.getObject("XZ_Plane"), [""])
sketch18.MapMode = "FlatFace"
sketch18.AttachmentOffset = App.Placement(App.Vector(0, 0, -1), App.Rotation())
sketch18.addGeometry(Part.Circle(App.Vector(37.95, -2.5, 0), App.Vector(0, 0, 1), 0.4), False)
sketch18.addConstraint([
    Sketcher.Constraint("Diameter", 0, Q("0.8 mm")),
    Sketcher.Constraint("DistanceY", 0, 3, -1, 1, Q("2.5 mm")),
    Sketcher.Constraint("DistanceX", -1, 1, 0, 3, Q("37.95 mm")),
])
pocket17 = body.newObject("PartDesign::Pocket", "Pocket016")
pocket17.Profile = sketch18
pocket17.Type = "UpToFirst"
pocket17.Reversed = True

sketch19 = body.newObject("Sketcher::SketchObject", "Sketch018")
sketch19.AttachmentSupport = (doc.getObject("XZ_Plane"), [""])
sketch19.MapMode = "FlatFace"
sketch19.AttachmentOffset = App.Placement(App.Vector(0, 0, -1), App.Rotation())
sketch19.addGeometry(Part.Circle(App.Vector(40.49, -2.5, 0), App.Vector(0, 0, 1), 0.4), False)
sketch19.addConstraint([
    Sketcher.Constraint("Diameter", 0, Q("0.8 mm")),
    Sketcher.Constraint("DistanceY", 0, 3, -1, 1, Q("2.5 mm")),
    Sketcher.Constraint("DistanceX", -1, 1, 0, 3, Q("40.49 mm")),
])
pocket18 = body.newObject("PartDesign::Pocket", "Pocket017")
pocket18.Profile = sketch19
pocket18.Type = "UpToFirst"
pocket18.Reversed = True

sketch20 = body.newObject("Sketcher::SketchObject", "Sketch019")
sketch20.AttachmentSupport = (doc.getObject("XZ_Plane"), [""])
sketch20.MapMode = "FlatFace"
sketch20.AttachmentOffset = App.Placement(App.Vector(0, 0, -1), App.Rotation())
sketch20.addGeometry(Part.Circle(App.Vector(43.03, -2.5, 0), App.Vector(0, 0, 1), 0.4), False)
sketch20.addConstraint([
    Sketcher.Constraint("Diameter", 0, Q("0.8 mm")),
    Sketcher.Constraint("DistanceY", 0, 3, -1, 1, Q("2.5 mm")),
    Sketcher.Constraint("DistanceX", -1, 1, 0, 3, Q("43.03 mm")),
])
pocket19 = body.newObject("PartDesign::Pocket", "Pocket018")
pocket19.Profile = sketch20
pocket19.Type = "UpToFirst"
pocket19.Reversed = True

sketch21 = body.newObject("Sketcher::SketchObject", "Sketch020")
sketch21.AttachmentSupport = (doc.getObject("XZ_Plane"), [""])
sketch21.MapMode = "FlatFace"
sketch21.AttachmentOffset = App.Placement(App.Vector(0, 0, -1), App.Rotation())
sketch21.addGeometry(Part.Circle(App.Vector(45.57, -2.5, 0), App.Vector(0, 0, 1), 0.4), False)
sketch21.addConstraint([
    Sketcher.Constraint("Diameter", 0, Q("0.8 mm")),
    Sketcher.Constraint("DistanceY", 0, 3, -1, 1, Q("2.5 mm")),
    Sketcher.Constraint("DistanceX", -1, 1, 0, 3, Q("45.57 mm")),
])
pocket20 = body.newObject("PartDesign::Pocket", "Pocket019")
pocket20.Profile = sketch21
pocket20.Type = "UpToFirst"
pocket20.Reversed = True

sketch22 = body.newObject("Sketcher::SketchObject", "Sketch021")
sketch22.AttachmentSupport = (doc.getObject("XZ_Plane"), [""])
sketch22.MapMode = "FlatFace"
sketch22.AttachmentOffset = App.Placement(App.Vector(0, 0, -1), App.Rotation())
sketch22.addGeometry(Part.Circle(App.Vector(48.11, -2.5, 0), App.Vector(0, 0, 1), 0.4), False)
sketch22.addConstraint([
    Sketcher.Constraint("Diameter", 0, Q("0.8 mm")),
    Sketcher.Constraint("DistanceY", 0, 3, -1, 1, Q("2.5 mm")),
    Sketcher.Constraint("DistanceX", -1, 1, 0, 3, Q("48.11 mm")),
])
pocket21 = body.newObject("PartDesign::Pocket", "Pocket020")
pocket21.Profile = sketch22
pocket21.Type = "UpToFirst"
pocket21.Reversed = True

sketch23 = body.newObject("Sketcher::SketchObject", "Sketch022")
sketch23.AttachmentSupport = (doc.getObject("XZ_Plane"), [""])
sketch23.MapMode = "FlatFace"
sketch23.AttachmentOffset = App.Placement(App.Vector(0, 0, -1), App.Rotation())
sketch23.addGeometry(Part.Circle(App.Vector(50.65, -2.5, 0), App.Vector(0, 0, 1), 0.4), False)
sketch23.addConstraint([
    Sketcher.Constraint("Diameter", 0, Q("0.8 mm")),
    Sketcher.Constraint("DistanceY", 0, 3, -1, 1, Q("2.5 mm")),
    Sketcher.Constraint("DistanceX", -1, 1, 0, 3, Q("50.65 mm")),
])
pocket22 = body.newObject("PartDesign::Pocket", "Pocket021")
pocket22.Profile = sketch23
pocket22.Type = "UpToFirst"
pocket22.Reversed = True

sketch24 = body.newObject("Sketcher::SketchObject", "Sketch023")
sketch24.AttachmentSupport = (doc.getObject("XZ_Plane"), [""])
sketch24.MapMode = "FlatFace"
sketch24.AttachmentOffset = App.Placement(App.Vector(0, 0, -1), App.Rotation())
sketch24.addGeometry(Part.Circle(App.Vector(53.19, -2.5, 0), App.Vector(0, 0, 1), 0.4), False)
sketch24.addConstraint([
    Sketcher.Constraint("Diameter", 0, Q("0.8 mm")),
    Sketcher.Constraint("DistanceY", 0, 3, -1, 1, Q("2.5 mm")),
    Sketcher.Constraint("DistanceX", -1, 1, 0, 3, Q("53.19 mm")),
])
pocket23 = body.newObject("PartDesign::Pocket", "Pocket022")
pocket23.Profile = sketch24
pocket23.Type = "UpToFirst"
pocket23.Reversed = True

sketch25 = body.newObject("Sketcher::SketchObject", "Sketch024")
sketch25.AttachmentSupport = (doc.getObject("XZ_Plane"), [""])
sketch25.MapMode = "FlatFace"
sketch25.AttachmentOffset = App.Placement(App.Vector(0, 0, -1), App.Rotation())
sketch25.addGeometry(Part.Circle(App.Vector(55.73, -2.5, 0), App.Vector(0, 0, 1), 0.4), False)
sketch25.addConstraint([
    Sketcher.Constraint("Diameter", 0, Q("0.8 mm")),
    Sketcher.Constraint("DistanceY", 0, 3, -1, 1, Q("2.5 mm")),
    Sketcher.Constraint("DistanceX", -1, 1, 0, 3, Q("55.73 mm")),
])
pocket24 = body.newObject("PartDesign::Pocket", "Pocket023")
pocket24.Profile = sketch25
pocket24.Type = "UpToFirst"
pocket24.Reversed = True

sketch26 = body.newObject("Sketcher::SketchObject", "Sketch025")
sketch26.AttachmentSupport = (doc.getObject("XZ_Plane"), [""])
sketch26.MapMode = "FlatFace"
sketch26.addGeometry(Part.Circle(App.Vector(11.5, -7.1, 0), App.Vector(0, 0, 1), 1.7), False)
sketch26.addConstraint([
    Sketcher.Constraint("Diameter", 0, Q("3.326736 mm")),
    Sketcher.Constraint("DistanceX", -1, 1, 0, 3, Q("11.478536 mm")),
    Sketcher.Constraint("DistanceY", 0, 3, -1, 1, Q("7.136146 mm")),
])
pocket25 = body.newObject("PartDesign::Pocket", "Pocket024")
pocket25.Profile = sketch26
pocket25.Type = "UpToFirst"

doc.recompute()
